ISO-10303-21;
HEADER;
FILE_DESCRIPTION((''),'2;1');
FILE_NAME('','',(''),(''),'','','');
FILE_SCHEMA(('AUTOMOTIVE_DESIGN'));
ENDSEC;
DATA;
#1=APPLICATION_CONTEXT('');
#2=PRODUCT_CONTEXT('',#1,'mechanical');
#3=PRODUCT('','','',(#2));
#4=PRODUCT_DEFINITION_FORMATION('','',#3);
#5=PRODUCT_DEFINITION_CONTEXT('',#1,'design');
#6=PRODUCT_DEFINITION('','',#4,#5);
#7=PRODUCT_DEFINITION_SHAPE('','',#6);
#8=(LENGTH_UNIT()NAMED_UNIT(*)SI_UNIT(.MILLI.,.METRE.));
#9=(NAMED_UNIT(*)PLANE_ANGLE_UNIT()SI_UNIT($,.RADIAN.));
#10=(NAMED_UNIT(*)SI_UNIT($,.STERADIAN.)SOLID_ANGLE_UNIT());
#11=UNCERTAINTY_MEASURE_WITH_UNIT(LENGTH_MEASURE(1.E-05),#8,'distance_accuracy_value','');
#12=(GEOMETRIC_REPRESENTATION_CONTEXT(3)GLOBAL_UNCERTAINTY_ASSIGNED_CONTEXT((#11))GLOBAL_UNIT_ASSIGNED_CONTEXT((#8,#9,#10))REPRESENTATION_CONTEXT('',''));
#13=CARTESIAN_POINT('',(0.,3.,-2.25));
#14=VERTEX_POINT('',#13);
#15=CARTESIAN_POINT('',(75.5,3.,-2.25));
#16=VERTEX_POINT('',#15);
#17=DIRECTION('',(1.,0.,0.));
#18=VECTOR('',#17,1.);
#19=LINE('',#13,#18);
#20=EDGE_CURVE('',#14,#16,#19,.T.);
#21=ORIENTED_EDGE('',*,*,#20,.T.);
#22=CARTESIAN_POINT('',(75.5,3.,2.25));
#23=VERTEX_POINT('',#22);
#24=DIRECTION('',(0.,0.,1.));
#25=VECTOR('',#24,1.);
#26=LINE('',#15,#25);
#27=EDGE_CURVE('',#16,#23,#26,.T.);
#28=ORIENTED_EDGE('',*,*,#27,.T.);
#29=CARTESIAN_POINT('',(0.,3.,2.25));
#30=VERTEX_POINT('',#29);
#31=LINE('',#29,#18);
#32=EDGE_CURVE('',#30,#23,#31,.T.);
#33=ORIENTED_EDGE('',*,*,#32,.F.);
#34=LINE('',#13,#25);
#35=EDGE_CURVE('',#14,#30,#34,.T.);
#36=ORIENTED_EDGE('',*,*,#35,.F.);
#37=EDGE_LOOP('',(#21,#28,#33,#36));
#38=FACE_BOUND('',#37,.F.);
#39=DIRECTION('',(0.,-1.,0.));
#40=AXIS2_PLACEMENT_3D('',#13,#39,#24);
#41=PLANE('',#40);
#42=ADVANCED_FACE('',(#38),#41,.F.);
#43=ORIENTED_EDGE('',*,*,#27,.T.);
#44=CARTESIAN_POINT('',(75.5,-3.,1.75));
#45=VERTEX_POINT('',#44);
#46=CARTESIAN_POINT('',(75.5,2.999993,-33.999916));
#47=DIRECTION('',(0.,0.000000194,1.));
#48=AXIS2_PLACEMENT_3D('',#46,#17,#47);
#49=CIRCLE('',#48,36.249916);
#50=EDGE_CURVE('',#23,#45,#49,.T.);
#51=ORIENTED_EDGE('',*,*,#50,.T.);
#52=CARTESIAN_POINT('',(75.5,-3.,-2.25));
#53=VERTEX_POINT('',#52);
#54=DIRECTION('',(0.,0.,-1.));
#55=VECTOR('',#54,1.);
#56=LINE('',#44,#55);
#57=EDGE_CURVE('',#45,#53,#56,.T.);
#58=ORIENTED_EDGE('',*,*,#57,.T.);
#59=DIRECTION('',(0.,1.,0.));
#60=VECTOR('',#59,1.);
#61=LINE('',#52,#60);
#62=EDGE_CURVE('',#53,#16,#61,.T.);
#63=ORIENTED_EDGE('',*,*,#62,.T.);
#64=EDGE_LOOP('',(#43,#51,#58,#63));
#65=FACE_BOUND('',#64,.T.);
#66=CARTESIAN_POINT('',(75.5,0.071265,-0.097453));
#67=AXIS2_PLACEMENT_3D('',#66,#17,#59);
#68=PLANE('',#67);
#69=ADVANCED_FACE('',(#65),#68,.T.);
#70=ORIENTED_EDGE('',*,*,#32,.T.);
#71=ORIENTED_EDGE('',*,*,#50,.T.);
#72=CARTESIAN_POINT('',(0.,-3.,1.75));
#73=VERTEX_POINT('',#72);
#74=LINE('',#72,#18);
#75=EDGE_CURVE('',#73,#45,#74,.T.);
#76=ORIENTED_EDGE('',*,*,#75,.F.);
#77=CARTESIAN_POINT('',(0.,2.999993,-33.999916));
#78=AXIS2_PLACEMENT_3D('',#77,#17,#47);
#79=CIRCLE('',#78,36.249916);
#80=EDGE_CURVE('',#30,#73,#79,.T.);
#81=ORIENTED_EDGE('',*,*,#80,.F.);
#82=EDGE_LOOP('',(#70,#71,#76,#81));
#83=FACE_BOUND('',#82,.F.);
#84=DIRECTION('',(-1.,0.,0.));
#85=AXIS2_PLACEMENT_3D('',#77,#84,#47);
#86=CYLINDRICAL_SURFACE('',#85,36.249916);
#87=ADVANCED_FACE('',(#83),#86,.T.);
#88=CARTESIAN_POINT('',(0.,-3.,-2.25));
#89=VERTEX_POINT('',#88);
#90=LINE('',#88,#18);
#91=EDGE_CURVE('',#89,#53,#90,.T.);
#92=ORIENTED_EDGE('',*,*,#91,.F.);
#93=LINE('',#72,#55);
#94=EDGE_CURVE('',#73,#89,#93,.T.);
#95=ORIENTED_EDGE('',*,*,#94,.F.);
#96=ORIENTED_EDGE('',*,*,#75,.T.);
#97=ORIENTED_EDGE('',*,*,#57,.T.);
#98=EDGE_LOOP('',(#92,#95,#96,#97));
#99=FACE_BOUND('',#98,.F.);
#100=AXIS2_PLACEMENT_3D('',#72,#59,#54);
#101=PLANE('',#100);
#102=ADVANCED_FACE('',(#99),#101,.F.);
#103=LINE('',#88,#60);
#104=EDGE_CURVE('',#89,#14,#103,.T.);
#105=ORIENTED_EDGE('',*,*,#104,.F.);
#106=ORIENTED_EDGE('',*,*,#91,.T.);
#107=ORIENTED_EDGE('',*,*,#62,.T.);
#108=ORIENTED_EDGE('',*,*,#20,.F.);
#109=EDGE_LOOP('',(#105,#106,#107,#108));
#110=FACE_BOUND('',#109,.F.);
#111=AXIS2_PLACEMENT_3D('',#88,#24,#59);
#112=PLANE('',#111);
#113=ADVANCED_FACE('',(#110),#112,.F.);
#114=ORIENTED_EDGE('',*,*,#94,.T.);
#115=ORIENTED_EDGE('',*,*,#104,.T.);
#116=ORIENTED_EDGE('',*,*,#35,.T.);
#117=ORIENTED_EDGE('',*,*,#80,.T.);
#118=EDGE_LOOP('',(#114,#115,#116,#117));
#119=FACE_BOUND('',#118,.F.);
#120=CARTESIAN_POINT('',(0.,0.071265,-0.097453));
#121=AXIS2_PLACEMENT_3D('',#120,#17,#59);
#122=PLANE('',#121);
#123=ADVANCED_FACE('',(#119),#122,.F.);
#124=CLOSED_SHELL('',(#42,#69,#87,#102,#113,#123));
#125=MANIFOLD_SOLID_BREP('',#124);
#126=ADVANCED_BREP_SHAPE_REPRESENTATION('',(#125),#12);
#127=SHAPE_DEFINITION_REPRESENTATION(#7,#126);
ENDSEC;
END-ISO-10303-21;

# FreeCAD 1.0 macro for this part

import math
import FreeCAD as App
import Part
import Sketcher

V = App.Vector
Q = App.Units.Quantity

doc = App.newDocument("Part")
body = doc.addObject("PartDesign::Body", "Body")

# Sketch on YZ plane
sketch1 = body.newObject("Sketcher::SketchObject", "Sketch")
sketch1.AttachmentSupport = (doc.getObject("YZ_Plane"), [""])
sketch1.MapMode = "FlatFace"
sketch1.addGeometry(Part.LineSegment(V(-3, -2.2, 0), V(3, -2.2, 0)), False)
sketch1.addGeometry(Part.LineSegment(V(3, -2.2, 0), V(3, 2.2, 0)), False)
sketch1.addGeometry(Part.ArcOfCircle(Part.Circle(V(3, -34, 0), V(0, 0, 1), 36.2), math.radians(90), math.radians(99.53)), False)
sketch1.addGeometry(Part.LineSegment(V(-3, 1.8, 0), V(-3, -2.2, 0)), False)
sketch1.addConstraint(Sketcher.Constraint("Coincident", 0, 2, 1, 1))
sketch1.addConstraint(Sketcher.Constraint("Coincident", 1, 2, 2, 1))
sketch1.addConstraint(Sketcher.Constraint("Coincident", 2, 2, 3, 1))
sketch1.addConstraint(Sketcher.Constraint("Coincident", 3, 2, 0, 1))
sketch1.addConstraint(Sketcher.Constraint("Horizontal", 0))
sketch1.addConstraint(Sketcher.Constraint("Vertical", 1))
sketch1.addConstraint(Sketcher.Constraint("Vertical", 3))
sketch1.addConstraint(Sketcher.Constraint("Symmetric", 1, 2, 3, 2, -1, 1))
sketch1.addConstraint(Sketcher.Constraint("DistanceX", 0, 1, 0, 2, Q("6 mm")))
sketch1.addConstraint(Sketcher.Constraint("DistanceY", 3, 2, 3, 1, Q("4 mm")))
sketch1.addConstraint(Sketcher.Constraint("DistanceY", 1, 1, 1, 2, Q("4.5 mm")))
sketch1.addConstraint(Sketcher.Constraint("Radius", 2, Q("36.249916 mm")))
pad1 = body.newObject("PartDesign::Pad", "Pad")
pad1.Profile = sketch1
pad1.Length = 75.5

doc.recompute()
